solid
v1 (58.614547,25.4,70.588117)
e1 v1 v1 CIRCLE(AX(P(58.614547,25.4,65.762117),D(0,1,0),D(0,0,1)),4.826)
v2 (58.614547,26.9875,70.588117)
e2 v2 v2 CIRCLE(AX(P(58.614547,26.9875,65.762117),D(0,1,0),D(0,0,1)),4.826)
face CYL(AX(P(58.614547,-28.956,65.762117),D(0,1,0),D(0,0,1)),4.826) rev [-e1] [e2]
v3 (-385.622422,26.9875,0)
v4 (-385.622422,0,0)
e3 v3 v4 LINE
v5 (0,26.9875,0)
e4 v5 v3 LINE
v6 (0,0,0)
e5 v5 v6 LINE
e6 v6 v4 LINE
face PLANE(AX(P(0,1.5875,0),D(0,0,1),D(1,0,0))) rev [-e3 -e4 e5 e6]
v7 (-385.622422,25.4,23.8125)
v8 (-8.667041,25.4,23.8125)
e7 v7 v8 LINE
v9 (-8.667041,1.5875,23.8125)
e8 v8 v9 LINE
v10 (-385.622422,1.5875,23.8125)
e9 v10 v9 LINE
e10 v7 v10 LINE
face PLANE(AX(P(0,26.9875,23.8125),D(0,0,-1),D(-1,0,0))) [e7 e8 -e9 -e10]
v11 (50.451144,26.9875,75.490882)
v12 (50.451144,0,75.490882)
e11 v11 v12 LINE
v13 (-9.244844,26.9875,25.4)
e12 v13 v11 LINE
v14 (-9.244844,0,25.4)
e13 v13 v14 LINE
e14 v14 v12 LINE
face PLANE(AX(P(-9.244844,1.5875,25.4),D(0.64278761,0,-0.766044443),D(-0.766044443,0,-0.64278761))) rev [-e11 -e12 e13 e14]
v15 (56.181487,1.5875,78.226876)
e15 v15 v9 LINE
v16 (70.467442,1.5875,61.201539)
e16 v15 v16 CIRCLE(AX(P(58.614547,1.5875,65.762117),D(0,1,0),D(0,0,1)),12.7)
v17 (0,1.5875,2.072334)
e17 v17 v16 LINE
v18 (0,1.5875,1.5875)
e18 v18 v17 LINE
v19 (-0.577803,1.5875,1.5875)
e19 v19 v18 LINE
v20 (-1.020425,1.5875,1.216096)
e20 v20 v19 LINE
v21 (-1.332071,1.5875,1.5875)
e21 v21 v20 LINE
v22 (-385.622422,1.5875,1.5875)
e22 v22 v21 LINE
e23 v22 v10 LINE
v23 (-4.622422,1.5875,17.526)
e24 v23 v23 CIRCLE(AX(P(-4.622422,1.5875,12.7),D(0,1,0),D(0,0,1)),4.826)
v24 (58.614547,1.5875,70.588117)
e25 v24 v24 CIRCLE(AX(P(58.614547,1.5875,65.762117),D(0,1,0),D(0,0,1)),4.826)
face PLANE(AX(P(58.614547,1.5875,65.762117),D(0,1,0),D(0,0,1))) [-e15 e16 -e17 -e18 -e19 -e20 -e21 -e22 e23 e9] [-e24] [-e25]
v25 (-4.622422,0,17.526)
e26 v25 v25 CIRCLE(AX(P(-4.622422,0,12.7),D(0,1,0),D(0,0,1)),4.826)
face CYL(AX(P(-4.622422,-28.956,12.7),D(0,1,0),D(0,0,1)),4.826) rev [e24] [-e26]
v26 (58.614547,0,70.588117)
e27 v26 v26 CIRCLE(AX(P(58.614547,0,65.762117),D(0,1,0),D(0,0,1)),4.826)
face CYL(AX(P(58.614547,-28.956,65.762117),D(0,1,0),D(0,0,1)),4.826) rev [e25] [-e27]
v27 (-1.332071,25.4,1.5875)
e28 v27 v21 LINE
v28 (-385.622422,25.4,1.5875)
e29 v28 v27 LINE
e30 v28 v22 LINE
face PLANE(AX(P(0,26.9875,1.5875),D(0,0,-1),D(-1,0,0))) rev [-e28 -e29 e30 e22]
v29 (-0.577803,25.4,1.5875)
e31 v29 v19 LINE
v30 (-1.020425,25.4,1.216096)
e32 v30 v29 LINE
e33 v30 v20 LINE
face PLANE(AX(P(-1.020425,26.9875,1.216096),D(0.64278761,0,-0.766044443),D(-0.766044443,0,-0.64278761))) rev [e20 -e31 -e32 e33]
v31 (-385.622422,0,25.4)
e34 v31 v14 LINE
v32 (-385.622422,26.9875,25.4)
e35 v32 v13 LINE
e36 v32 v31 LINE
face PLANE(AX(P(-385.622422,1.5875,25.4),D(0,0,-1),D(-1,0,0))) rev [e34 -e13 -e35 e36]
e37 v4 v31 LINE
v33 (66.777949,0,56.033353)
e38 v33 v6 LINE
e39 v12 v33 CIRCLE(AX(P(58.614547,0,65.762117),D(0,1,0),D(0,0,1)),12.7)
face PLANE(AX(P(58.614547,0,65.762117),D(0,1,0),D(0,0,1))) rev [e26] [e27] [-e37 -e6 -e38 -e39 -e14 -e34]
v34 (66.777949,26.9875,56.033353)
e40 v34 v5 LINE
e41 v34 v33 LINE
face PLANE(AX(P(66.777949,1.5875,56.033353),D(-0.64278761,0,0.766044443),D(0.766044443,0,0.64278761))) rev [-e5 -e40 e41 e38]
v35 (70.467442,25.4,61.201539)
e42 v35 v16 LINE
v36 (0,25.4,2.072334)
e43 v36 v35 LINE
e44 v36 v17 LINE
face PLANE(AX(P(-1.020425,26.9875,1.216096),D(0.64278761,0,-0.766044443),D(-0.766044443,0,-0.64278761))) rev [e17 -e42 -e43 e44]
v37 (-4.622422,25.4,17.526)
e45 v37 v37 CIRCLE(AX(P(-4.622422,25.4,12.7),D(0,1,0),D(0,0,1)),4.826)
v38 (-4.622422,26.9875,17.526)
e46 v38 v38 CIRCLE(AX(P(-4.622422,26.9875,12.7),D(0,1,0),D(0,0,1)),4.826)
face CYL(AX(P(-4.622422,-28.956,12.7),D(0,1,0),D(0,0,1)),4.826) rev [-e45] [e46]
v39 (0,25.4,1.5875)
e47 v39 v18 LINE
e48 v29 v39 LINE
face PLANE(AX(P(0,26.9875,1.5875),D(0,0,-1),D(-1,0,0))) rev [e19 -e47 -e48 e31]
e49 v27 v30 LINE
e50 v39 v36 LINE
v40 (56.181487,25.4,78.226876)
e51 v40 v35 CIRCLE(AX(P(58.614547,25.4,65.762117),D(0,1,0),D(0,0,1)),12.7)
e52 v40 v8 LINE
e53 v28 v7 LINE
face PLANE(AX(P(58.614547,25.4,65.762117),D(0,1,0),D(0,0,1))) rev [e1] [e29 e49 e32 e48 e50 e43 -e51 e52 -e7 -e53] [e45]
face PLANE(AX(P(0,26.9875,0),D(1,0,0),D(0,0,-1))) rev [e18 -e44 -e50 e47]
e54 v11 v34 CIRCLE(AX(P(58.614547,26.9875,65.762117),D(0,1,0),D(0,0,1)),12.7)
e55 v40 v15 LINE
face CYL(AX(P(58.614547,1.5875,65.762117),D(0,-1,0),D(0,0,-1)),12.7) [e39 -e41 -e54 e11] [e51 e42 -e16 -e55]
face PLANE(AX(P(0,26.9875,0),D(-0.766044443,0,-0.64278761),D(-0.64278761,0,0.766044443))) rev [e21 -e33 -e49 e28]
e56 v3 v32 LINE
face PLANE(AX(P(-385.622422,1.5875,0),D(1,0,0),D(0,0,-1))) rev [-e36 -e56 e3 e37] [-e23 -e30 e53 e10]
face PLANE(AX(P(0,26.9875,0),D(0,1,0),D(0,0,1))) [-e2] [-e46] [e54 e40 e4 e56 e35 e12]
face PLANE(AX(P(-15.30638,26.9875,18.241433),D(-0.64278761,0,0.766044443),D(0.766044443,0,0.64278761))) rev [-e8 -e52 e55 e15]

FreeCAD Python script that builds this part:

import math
import FreeCAD as App
import Part
import Sketcher
from FreeCAD import Vector
Q = App.Units.Quantity

doc = App.newDocument("Part")
body = doc.addObject("PartDesign::Body", "Body")

sketch1 = doc.addObject("Sketcher::SketchObject", "Sketch")
body.addObject(sketch1)
sketch1.AttachmentSupport = (doc.XZ_Plane, [""])
sketch1.MapMode = "FlatFace"
sketch1.addGeometry([
    Part.LineSegment(Vector(-386, 25, 0), Vector(-9, 25, 0)),
    Part.LineSegment(Vector(-9, 25, 0), Vector(50, 75, 0)),
    Part.ArcOfCircle(Part.Circle(Vector(59, 66, 0), Vector(0, 0, 1), 13), math.radians(-50), math.radians(130)),
    Part.LineSegment(Vector(67, 56, 0), Vector(0, 0, 0)),
    Part.LineSegment(Vector(0, 0, 0), Vector(-386, 0, 0)),
    Part.LineSegment(Vector(-386, 0, 0), Vector(-386, 25, 0)),
], False)
sketch1.addConstraint([
    Sketcher.Constraint("Coincident", 0, 2, 1, 1),
    Sketcher.Constraint("Tangent", 1, 2, 2, 2),
    Sketcher.Constraint("Tangent", 2, 1, 3, 1),
    Sketcher.Constraint("Coincident", 3, 2, 4, 1),
    Sketcher.Constraint("Coincident", 4, 2, 5, 1),
    Sketcher.Constraint("Coincident", 5, 2, 0, 1),
    Sketcher.Constraint("Horizontal", 0),
    Sketcher.Constraint("Horizontal", 4),
    Sketcher.Constraint("Vertical", 5),
    Sketcher.Constraint("Coincident", 3, 2, -1, 1),
    Sketcher.Constraint("Parallel", 1, 3),
    Sketcher.Constraint("Radius", 2, Q("0.5 in")),
    Sketcher.Constraint("DistanceY", 5, 1, 5, 2, Q("1 in")),
    Sketcher.Constraint("Angle", 1, Q("40 deg")),
    Sketcher.Constraint("DistanceX", 0, 1, 0, 2, Q("376.377578 mm")),
    Sketcher.Constraint("Distance", 1, Q("77.927578 mm")),
])
pad1 = doc.addObject("PartDesign::Pad", "Pad")
body.addObject(pad1)
pad1.Profile = sketch1
pad1.Length = Q("0.0625 in")
pad1.Reversed = True

sketch2 = doc.addObject("Sketcher::SketchObject", "Sketch001")
body.addObject(sketch2)
sketch2.AttachmentSupport = (doc.XZ_Plane, [""])
sketch2.MapMode = "FlatFace"
sketch2.AttachmentOffset = App.Placement(Vector(0, 0, -0.0625 * 25.4), App.Rotation())
sketch2.addGeometry([
    Part.LineSegment(Vector(-385.62, 0, 0), Vector(-385.62, 1.59, 0)),
    Part.LineSegment(Vector(-385.62, 1.59, 0), Vector(-1.33, 1.59, 0)),
    Part.LineSegment(Vector(-1.33, 1.59, 0), Vector(-1.02, 1.22, 0)),
    Part.LineSegment(Vector(-1.02, 1.22, 0), Vector(-0.58, 1.59, 0)),
    Part.LineSegment(Vector(-0.58, 1.59, 0), Vector(0, 1.59, 0)),
    Part.LineSegment(Vector(0, 1.59, 0), Vector(0, 2.07, 0)),
    Part.LineSegment(Vector(0, 2.07, 0), Vector(70.47, 61.2, 0)),
    Part.ArcOfCircle(Part.Circle(Vector(58.61, 65.76, 0), Vector(0, 0, 1), 12.7), math.radians(-50), math.radians(-21)),
    Part.LineSegment(Vector(66.78, 56.03, 0), Vector(0, 0, 0)),
    Part.LineSegment(Vector(0, 0, 0), Vector(-385.62, 0, 0)),
    Part.LineSegment(Vector(-8.67, 23.81, 0), Vector(-385.62, 23.81, 0)),
    Part.LineSegment(Vector(-385.62, 23.81, 0), Vector(-385.62, 25.4, 0)),
    Part.LineSegment(Vector(-385.62, 25.4, 0), Vector(-9.24, 25.4, 0)),
    Part.LineSegment(Vector(-9.24, 25.4, 0), Vector(50.45, 75.49, 0)),
    Part.ArcOfCircle(Part.Circle(Vector(58.61, 65.76, 0), Vector(0, 0, 1), 12.7), math.radians(101), math.radians(130)),
    Part.LineSegment(Vector(56.18, 78.23, 0), Vector(-8.67, 23.81, 0)),
], False)
sketch2.addConstraint([
    Sketcher.Constraint("Coincident", 0, 2, 1, 1),
    Sketcher.Constraint("Coincident", 1, 2, 2, 1),
    Sketcher.Constraint("Coincident", 2, 2, 3, 1),
    Sketcher.Constraint("Coincident", 3, 2, 4, 1),
    Sketcher.Constraint("Coincident", 4, 2, 5, 1),
    Sketcher.Constraint("Coincident", 5, 2, 6, 1),
    Sketcher.Constraint("Coincident", 6, 2, 7, 2),
    Sketcher.Constraint("Tangent", 7, 1, 8, 1),
    Sketcher.Constraint("Coincident", 8, 2, 9, 1),
    Sketcher.Constraint("Coincident", 9, 2, 0, 1),
    Sketcher.Constraint("Coincident", 10, 2, 11, 1),
    Sketcher.Constraint("Coincident", 11, 2, 12, 1),
    Sketcher.Constraint("Coincident", 12, 2, 13, 1),
    Sketcher.Constraint("Tangent", 13, 2, 14, 2),
    Sketcher.Constraint("Coincident", 14, 1, 15, 1),
    Sketcher.Constraint("Coincident", 15, 2, 10, 1),
    Sketcher.Constraint("Vertical", 0),
    Sketcher.Constraint("Horizontal", 1),
    Sketcher.Constraint("Horizontal", 4),
    Sketcher.Constraint("Vertical", 5),
    Sketcher.Constraint("Horizontal", 9),
    Sketcher.Constraint("Horizontal", 10),
    Sketcher.Constraint("Vertical", 11),
    Sketcher.Constraint("Horizontal", 12),
    Sketcher.Constraint("Coincident", 8, 2, -1, 1),
    Sketcher.Constraint("Coincident", 14, 3, 7, 3),
    Sketcher.Constraint("Equal", 7, 14),
    Sketcher.Constraint("PointOnObject", 4, 2, -2),
    Sketcher.Constraint("Perpendicular", 2, 3),
    Sketcher.Constraint("Parallel", 3, 6),
    Sketcher.Constraint("Parallel", 6, 8),
    Sketcher.Constraint("Parallel", 8, 13),
    Sketcher.Constraint("Parallel", 13, 15),
    Sketcher.Constraint("Horizontal", 1, 2, 3, 2),
    Sketcher.Constraint("Vertical", 9, 2, 10, 2),
    Sketcher.Constraint("Equal", 0, 11),
    Sketcher.Constraint("Radius", 7, Q("0.5 in")),
    Sketcher.Constraint("DistanceY", -1, 1, 11, 2, Q("1 in")),
    Sketcher.Constraint("Angle", 6, Q("40 deg")),
    Sketcher.Constraint("DistanceY", 0, 1, 0, 2, Q("0.0625 in")),
    Sketcher.Constraint("DistanceX", 1, 1, 1, 2, Q("384.290351 mm")),
    Sketcher.Constraint("DistanceX", 9, 2, 9, 1, Q("385.622422 mm")),
    Sketcher.Constraint("DistanceX", 10, 2, 10, 1, Q("376.955381 mm")),
    Sketcher.Constraint("Distance", 8, Q("87.172422 mm")),
    Sketcher.Constraint("DistanceX", 4, 1, 4, 2, Q("0.577803 mm")),
    Sketcher.Constraint("DistanceY", 5, 1, 5, 2, Q("0.484834 mm")),
])
pad2 = doc.addObject("PartDesign::Pad", "Pad001")
body.addObject(pad2)
pad2.Profile = sketch2
pad2.Length = Q("1 in")
pad2.Reversed = True

sketch3 = doc.addObject("Sketcher::SketchObject", "Sketch002")
body.addObject(sketch3)
sketch3.AttachmentSupport = (doc.XZ_Plane, [""])
sketch3.MapMode = "FlatFace"
sketch3.AttachmentOffset = App.Placement(Vector(0, 0, -1 * 25.4), App.Rotation())
sketch3.addGeometry([
    Part.LineSegment(Vector(-386, 0, 0), Vector(-386, 25, 0)),
    Part.LineSegment(Vector(-386, 25, 0), Vector(-9, 25, 0)),
    Part.LineSegment(Vector(-9, 25, 0), Vector(50, 75, 0)),
    Part.ArcOfCircle(Part.Circle(Vector(59, 66, 0), Vector(0, 0, 1), 13), math.radians(-50), math.radians(130)),
    Part.LineSegment(Vector(67, 56, 0), Vector(0, 0, 0)),
    Part.LineSegment(Vector(0, 0, 0), Vector(-386, 0, 0)),
], False)
sketch3.addConstraint([
    Sketcher.Constraint("Coincident", 0, 2, 1, 1),
    Sketcher.Constraint("Coincident", 1, 2, 2, 1),
    Sketcher.Constraint("Tangent", 2, 2, 3, 2),
    Sketcher.Constraint("Tangent", 3, 1, 4, 1),
    Sketcher.Constraint("Coincident", 4, 2, 5, 1),
    Sketcher.Constraint("Coincident", 5, 2, 0, 1),
    Sketcher.Constraint("Vertical", 0),
    Sketcher.Constraint("Horizontal", 1),
    Sketcher.Constraint("Horizontal", 5),
    Sketcher.Constraint("Coincident", 4, 2, -1, 1),
    Sketcher.Constraint("Parallel", 2, 4),
    Sketcher.Constraint("Radius", 3, Q("0.5 in")),
    Sketcher.Constraint("DistanceY", 0, 1, 0, 2, Q("1 in")),
    Sketcher.Constraint("Angle", 2, Q("40 deg")),
    Sketcher.Constraint("DistanceX", 1, 1, 1, 2, Q("376.377578 mm")),
    Sketcher.Constraint("Distance", 2, Q("77.927578 mm")),
])
pad3 = doc.addObject("PartDesign::Pad", "Pad002")
body.addObject(pad3)
pad3.Profile = sketch3
pad3.Length = Q("0.0625 in")
pad3.Reversed = True

sketch4 = doc.addObject("Sketcher::SketchObject", "Sketch003")
body.addObject(sketch4)
sketch4.AttachmentSupport = (doc.XZ_Plane, [""])
sketch4.MapMode = "FlatFace"
sketch4.AttachmentOffset = App.Placement(Vector(0, 0, -1.0625 * 25.4), App.Rotation())
sketch4.addGeometry([
    Part.Circle(Vector(58.6, 65.8, 0), Vector(0, 0, 1), 4.8),
    Part.Circle(Vector(-4.6, 12.7, 0), Vector(0, 0, 1), 4.8),
], False)
sketch4.addConstraint([
    Sketcher.Constraint("Equal", 0, 1),
    Sketcher.Constraint("Diameter", 0, Q("0.38 in")),
    Sketcher.Constraint("DistanceY", -1, 1, 1, 3, Q("0.5 in")),
    Sketcher.Constraint("DistanceX", 1, 3, -1, 1, Q("4.622422 mm")),
    Sketcher.Constraint("DistanceX", 1, 3, 0, 3, Q("63.236969 mm")),
    Sketcher.Constraint("DistanceY", -1, 1, 0, 3, Q("65.762117 mm")),
])
pocket1 = doc.addObject("PartDesign::Pocket", "Pocket")
body.addObject(pocket1)
pocket1.Profile = sketch4
pocket1.Length = Q("2.2025 in")
pocket1.Reversed = True

doc.recompute()
